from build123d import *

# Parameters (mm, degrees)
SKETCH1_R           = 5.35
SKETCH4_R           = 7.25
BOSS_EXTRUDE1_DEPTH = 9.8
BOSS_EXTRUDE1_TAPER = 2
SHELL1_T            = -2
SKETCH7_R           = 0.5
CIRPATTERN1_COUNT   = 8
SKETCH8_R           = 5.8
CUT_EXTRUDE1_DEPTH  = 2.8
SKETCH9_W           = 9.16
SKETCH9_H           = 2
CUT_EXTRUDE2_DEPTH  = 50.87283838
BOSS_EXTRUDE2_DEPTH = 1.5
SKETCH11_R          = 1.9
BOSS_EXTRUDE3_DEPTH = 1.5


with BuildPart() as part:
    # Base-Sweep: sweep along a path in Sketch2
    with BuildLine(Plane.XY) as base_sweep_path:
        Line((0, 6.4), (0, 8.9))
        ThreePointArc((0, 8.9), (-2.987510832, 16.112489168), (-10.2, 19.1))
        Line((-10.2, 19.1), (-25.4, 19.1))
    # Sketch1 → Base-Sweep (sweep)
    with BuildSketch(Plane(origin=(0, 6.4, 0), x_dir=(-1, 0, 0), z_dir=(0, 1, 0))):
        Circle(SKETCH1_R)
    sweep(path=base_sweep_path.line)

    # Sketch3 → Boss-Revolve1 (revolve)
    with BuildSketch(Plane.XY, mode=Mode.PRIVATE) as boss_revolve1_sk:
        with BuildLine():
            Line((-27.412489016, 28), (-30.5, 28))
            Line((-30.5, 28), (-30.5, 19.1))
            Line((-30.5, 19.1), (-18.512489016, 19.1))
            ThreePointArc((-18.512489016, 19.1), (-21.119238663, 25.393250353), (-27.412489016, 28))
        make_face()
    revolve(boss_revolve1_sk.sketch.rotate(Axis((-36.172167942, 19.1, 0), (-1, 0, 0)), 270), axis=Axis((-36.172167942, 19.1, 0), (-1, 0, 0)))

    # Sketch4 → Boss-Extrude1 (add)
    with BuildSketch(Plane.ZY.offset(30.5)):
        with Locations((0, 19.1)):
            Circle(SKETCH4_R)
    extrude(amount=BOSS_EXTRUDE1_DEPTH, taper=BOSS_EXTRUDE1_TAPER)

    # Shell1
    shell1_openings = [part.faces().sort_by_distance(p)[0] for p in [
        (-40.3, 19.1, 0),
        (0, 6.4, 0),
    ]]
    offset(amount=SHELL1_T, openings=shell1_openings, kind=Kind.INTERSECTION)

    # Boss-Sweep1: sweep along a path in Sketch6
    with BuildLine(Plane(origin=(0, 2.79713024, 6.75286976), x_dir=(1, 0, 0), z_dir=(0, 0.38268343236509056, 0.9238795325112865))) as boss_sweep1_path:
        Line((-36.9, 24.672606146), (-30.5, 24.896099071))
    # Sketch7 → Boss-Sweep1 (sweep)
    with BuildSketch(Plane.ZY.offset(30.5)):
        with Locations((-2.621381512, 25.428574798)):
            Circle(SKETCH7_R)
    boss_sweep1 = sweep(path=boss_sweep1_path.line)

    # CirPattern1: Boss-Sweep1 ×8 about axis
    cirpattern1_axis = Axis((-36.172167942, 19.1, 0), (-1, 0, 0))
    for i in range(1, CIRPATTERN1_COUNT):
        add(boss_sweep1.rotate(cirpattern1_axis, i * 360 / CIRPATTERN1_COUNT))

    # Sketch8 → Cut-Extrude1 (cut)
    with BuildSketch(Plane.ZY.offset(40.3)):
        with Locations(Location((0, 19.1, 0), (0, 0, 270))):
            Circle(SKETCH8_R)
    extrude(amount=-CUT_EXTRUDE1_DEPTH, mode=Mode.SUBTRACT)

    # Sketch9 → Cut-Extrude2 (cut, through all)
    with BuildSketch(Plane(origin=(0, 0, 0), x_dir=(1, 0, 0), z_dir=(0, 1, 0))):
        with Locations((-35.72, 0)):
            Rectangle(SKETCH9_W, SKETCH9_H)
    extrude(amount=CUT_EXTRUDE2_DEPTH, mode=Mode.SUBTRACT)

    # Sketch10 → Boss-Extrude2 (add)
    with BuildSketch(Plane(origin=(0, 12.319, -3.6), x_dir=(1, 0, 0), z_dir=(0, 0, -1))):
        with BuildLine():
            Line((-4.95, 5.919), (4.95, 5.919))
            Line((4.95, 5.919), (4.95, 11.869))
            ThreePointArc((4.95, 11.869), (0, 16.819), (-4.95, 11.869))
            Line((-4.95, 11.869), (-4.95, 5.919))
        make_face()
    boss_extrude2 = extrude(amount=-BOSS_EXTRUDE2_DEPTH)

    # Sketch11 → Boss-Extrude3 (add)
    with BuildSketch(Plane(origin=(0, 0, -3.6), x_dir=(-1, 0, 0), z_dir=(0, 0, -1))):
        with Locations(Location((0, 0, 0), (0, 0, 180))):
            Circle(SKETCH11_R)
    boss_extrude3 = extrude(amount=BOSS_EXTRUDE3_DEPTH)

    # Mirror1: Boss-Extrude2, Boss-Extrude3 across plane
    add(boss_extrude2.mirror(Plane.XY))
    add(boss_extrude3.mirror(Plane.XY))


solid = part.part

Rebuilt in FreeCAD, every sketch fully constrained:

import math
import FreeCAD as App
import Part
import Sketcher
Q = App.Units.Quantity


def faces_at(feature, points):
    """Names of the faces that lie closest to the given points."""
    faces = feature.Shape.Faces
    near = lambda p: min(range(len(faces)), key=lambda i: faces[i].distToShape(Part.Vertex(*p))[0])
    return sorted({f"Face{near(p) + 1}" for p in points})


def add_polygon(sketch, points):
    """Adds a closed chain of lines whose ends are joined by coincident constraints."""
    first, n = sketch.GeometryCount, len(points)
    for a, b in zip(points, points[1:] + points[:1]):
        sketch.addGeometry(Part.LineSegment(App.Vector(*a, 0), App.Vector(*b, 0)), False)
    for i in range(n):
        sketch.addConstraint(Sketcher.Constraint("Coincident", first + i, 2, first + (i + 1) % n, 1))

doc = App.newDocument("Part")
body = doc.addObject("PartDesign::Body", "Body")

sketch1 = doc.addObject("Sketcher::SketchObject", "Sketch")
body.addObject(sketch1)
sketch1.AttachmentSupport = (doc.XZ_Plane, [""])
sketch1.MapMode = "FlatFace"
sketch1.AttachmentOffset = App.Placement(App.Vector(0, 0, -6.4), App.Rotation())
sketch1.addGeometry(Part.Circle(App.Vector(0, 0, 0), App.Vector(0, 0, 1), 5), False)
sketch1.addConstraint([
    Sketcher.Constraint("Coincident", 0, 3, -1, 1),
    Sketcher.Constraint("Diameter", 0, Q("10.7 mm")),
])

sketch2 = doc.addObject("Sketcher::SketchObject", "Sketch001")
body.addObject(sketch2)
sketch2.AttachmentSupport = (doc.XY_Plane, [""])
sketch2.MapMode = "FlatFace"
sketch2.addGeometry([
    Part.LineSegment(App.Vector(0, 6.4, 0), App.Vector(0, 8.9, 0)),
    Part.ArcOfCircle(Part.Circle(App.Vector(-10.2, 8.9, 0), App.Vector(0, 0, 1), 10.2), math.radians(0), math.radians(90)),
    Part.LineSegment(App.Vector(-10.2, 19.1, 0), App.Vector(-25.4, 19.1, 0)),
], False)
sketch2.addConstraint([
    Sketcher.Constraint("Tangent", 0, 2, 1, 1),
    Sketcher.Constraint("Tangent", 1, 2, 2, 1),
    Sketcher.Constraint("Vertical", 0),
    Sketcher.Constraint("Horizontal", 2),
    Sketcher.Constraint("PointOnObject", 0, 1, -2),
    Sketcher.Constraint("Radius", 1, Q("10.2 mm")),
    Sketcher.Constraint("DistanceX", 2, 2, 2, 1, Q("15.2 mm")),
    Sketcher.Constraint("DistanceY", 0, 1, 0, 2, Q("2.5 mm")),
    Sketcher.Constraint("DistanceY", -1, 1, 1, 3, Q("8.9 mm")),
])
doc.recompute()

additivepipe = doc.addObject("PartDesign::AdditivePipe", "AdditivePipe")
body.addObject(additivepipe)
additivepipe.Profile = sketch1
additivepipe.Spine = (sketch2, ["Edge1", "Edge2", "Edge3"])

sketch3 = doc.addObject("Sketcher::SketchObject", "Sketch002")
body.addObject(sketch3)
sketch3.AttachmentSupport = (doc.XY_Plane, [""])
sketch3.MapMode = "FlatFace"
sketch3.addGeometry([
    Part.LineSegment(App.Vector(-27.4, 28, 0), App.Vector(-30.5, 28, 0)),
    Part.LineSegment(App.Vector(-30.5, 28, 0), App.Vector(-30.5, 19.1, 0)),
    Part.LineSegment(App.Vector(-30.5, 19.1, 0), App.Vector(-18.5, 19.1, 0)),
    Part.ArcOfCircle(Part.Circle(App.Vector(-27.4, 19.1, 0), App.Vector(0, 0, 1), 8.9), math.radians(0), math.radians(90)),
], False)
sketch3.addGeometry(Part.LineSegment(App.Vector(-18.5, 19.1, 0), App.Vector(-30.5, 19.1, 0)), True)
sketch3.addConstraint([
    Sketcher.Constraint("Coincident", 0, 2, 1, 1),
    Sketcher.Constraint("Coincident", 1, 2, 2, 1),
    Sketcher.Constraint("Coincident", 2, 2, 3, 1),
    Sketcher.Constraint("Tangent", 3, 2, 0, 1),
    Sketcher.Constraint("Horizontal", 0),
    Sketcher.Constraint("Vertical", 1),
    Sketcher.Constraint("Horizontal", 2),
    Sketcher.Constraint("Horizontal", 4),
    Sketcher.Constraint("Coincident", 4, 1, 2, 2),
    Sketcher.Constraint("Horizontal", 3, 3, 1, 2),
    Sketcher.Constraint("Vertical", 0, 2, 4, 2),
    Sketcher.Constraint("Radius", 3, Q("8.9 mm")),
    Sketcher.Constraint("DistanceY", -1, 1, 0, 2, Q("28 mm")),
    Sketcher.Constraint("DistanceX", 0, 2, -1, 1, Q("30.5 mm")),
    Sketcher.Constraint("DistanceX", 0, 2, 0, 1, Q("3.087511 mm")),
])
revolution = doc.addObject("PartDesign::Revolution", "Revolution")
body.addObject(revolution)
revolution.Profile = sketch3
revolution.ReferenceAxis = (sketch3, ["Axis0"])
revolution.Angle = 360

sketch4 = doc.addObject("Sketcher::SketchObject", "Sketch003")
body.addObject(sketch4)
sketch4.AttachmentSupport = (doc.YZ_Plane, [""])
sketch4.MapMode = "FlatFace"
sketch4.AttachmentOffset = App.Placement(App.Vector(0, 0, -30.5), App.Rotation())
sketch4.addGeometry(Part.Circle(App.Vector(19, 0, 0), App.Vector(0, 0, 1), 7), False)
sketch4.addConstraint([
    Sketcher.Constraint("PointOnObject", 0, 3, -1),
    Sketcher.Constraint("Diameter", 0, Q("14.5 mm")),
    Sketcher.Constraint("DistanceX", -1, 1, 0, 3, Q("19.1 mm")),
])
pad1 = doc.addObject("PartDesign::Pad", "Pad")
body.addObject(pad1)
pad1.Profile = sketch4
pad1.Length = 9.8
pad1.Reversed = True
pad1.TaperAngle = -2
doc.recompute()

thickness = doc.addObject("PartDesign::Thickness", "Thickness")
body.addObject(thickness)
thickness.Base = (pad1, faces_at(pad1, [(-40.3, 19.1, 0), (0, 6.4, 0)]))
thickness.Value = 2
thickness.Reversed = True
thickness.Join = "Intersection"

sketch5 = doc.addObject("Sketcher::SketchObject", "Sketch004")
body.addObject(sketch5)
sketch5.AttachmentSupport = (doc.YZ_Plane, [""])
sketch5.MapMode = "FlatFace"
sketch5.AttachmentOffset = App.Placement(App.Vector(0, 0, -30.5), App.Rotation())
sketch5.addGeometry(Part.Circle(App.Vector(25.4, -2.6, 0), App.Vector(0, 0, 1), 0.5), False)
sketch5.addConstraint([
    Sketcher.Constraint("Diameter", 0, Q("1 mm")),
    Sketcher.Constraint("DistanceY", 0, 3, -1, 1, Q("2.621382 mm")),
    Sketcher.Constraint("DistanceX", -1, 1, 0, 3, Q("25.428575 mm")),
])

sketch6 = doc.addObject("Sketcher::SketchObject", "Sketch005")
body.addObject(sketch6)
sketch6.Placement = App.Placement(App.Vector(-0.863162, 26.754288, 0), App.Rotation(App.Vector(0.999479969, 0.032245807, 0), App.Vector(0, 0, 1.000000001), App.Vector(0.032245807, -0.999479969, 0), "ZXY"))
sketch6.addGeometry(Part.LineSegment(App.Vector(-36.055588, -2.688928, 0), App.Vector(-29.652258, -2.774455, 0)), False)
sketch6.addConstraint([
    Sketcher.Constraint("Distance", 0, Q("6.403901 mm")),
    Sketcher.Constraint("DistanceX", 0, 1, 0, 2, Q("6.40333 mm")),
    Sketcher.Constraint("DistanceX", 0, 1, -1, 1, Q("36.055588 mm")),
    Sketcher.Constraint("DistanceY", 0, 1, -1, 1, Q("2.688928 mm")),
])
doc.recompute()

additivepipe2 = doc.addObject("PartDesign::AdditivePipe", "AdditivePipe001")
body.addObject(additivepipe2)
additivepipe2.Profile = sketch5
additivepipe2.Spine = (sketch6, ["Edge1"])
doc.recompute()

datumline = doc.addObject("PartDesign::Line", "DatumLine")
body.addObject(datumline)
datumline.Placement = App.Placement(App.Vector(0, 19.1, 0), App.Rotation(App.Vector(0, 0, 1), App.Vector(-1, 0, 0)))
polarpattern = doc.addObject("PartDesign::PolarPattern", "PolarPattern")
body.addObject(polarpattern)
polarpattern.Originals = [additivepipe2]
polarpattern.Axis = (datumline, [""])
polarpattern.Angle = 360
polarpattern.Occurrences = 8
body.Tip = polarpattern

sketch7 = doc.addObject("Sketcher::SketchObject", "Sketch006")
body.addObject(sketch7)
sketch7.AttachmentSupport = (doc.YZ_Plane, [""])
sketch7.MapMode = "FlatFace"
sketch7.AttachmentOffset = App.Placement(App.Vector(0, 0, -40.3), App.Rotation())
sketch7.addGeometry(Part.Circle(App.Vector(19, 0, 0), App.Vector(0, 0, 1), 6), False)
sketch7.addConstraint([
    Sketcher.Constraint("PointOnObject", 0, 3, -1),
    Sketcher.Constraint("Diameter", 0, Q("11.6 mm")),
    Sketcher.Constraint("DistanceX", -1, 1, 0, 3, Q("19.1 mm")),
])
pocket1 = doc.addObject("PartDesign::Pocket", "Pocket")
body.addObject(pocket1)
pocket1.Profile = sketch7
pocket1.Length = 2.8
pocket1.Reversed = True

sketch8 = doc.addObject("Sketcher::SketchObject", "Sketch007")
body.addObject(sketch8)
sketch8.AttachmentSupport = (doc.XZ_Plane, [""])
sketch8.MapMode = "FlatFace"
add_polygon(sketch8, [(-40.3, -1), (-40.3, 1), (-31.1, 1), (-31.1, -1)])
sketch8.addConstraint([
    Sketcher.Constraint("Vertical", 0),
    Sketcher.Constraint("Horizontal", 1),
    Sketcher.Constraint("Vertical", 2),
    Sketcher.Constraint("Horizontal", 3),
    Sketcher.Constraint("DistanceY", 0, 1, 0, 2, Q("2 mm")),
    Sketcher.Constraint("DistanceY", -1, 1, 0, 2, Q("1 mm")),
    Sketcher.Constraint("DistanceX", 1, 1, 1, 2, Q("9.16 mm")),
    Sketcher.Constraint("DistanceX", 0, 2, -1, 1, Q("40.3 mm")),
])
pocket2 = doc.addObject("PartDesign::Pocket", "Pocket001")
body.addObject(pocket2)
pocket2.Profile = sketch8
pocket2.Type = "ThroughAll"

sketch9 = doc.addObject("Sketcher::SketchObject", "Sketch008")
body.addObject(sketch9)
sketch9.AttachmentSupport = (doc.XY_Plane, [""])
sketch9.MapMode = "FlatFace"
sketch9.AttachmentOffset = App.Placement(App.Vector(0, 0, -3.6), App.Rotation())
sketch9.addGeometry([
    Part.LineSegment(App.Vector(-5, 6.4, 0), App.Vector(5, 6.4, 0)),
    Part.LineSegment(App.Vector(5, 6.4, 0), App.Vector(5, 0.5, 0)),
    Part.ArcOfCircle(Part.Circle(App.Vector(0, 0.5, 0), App.Vector(0, 0, 1), 5), math.radians(180), math.radians(360)),
    Part.LineSegment(App.Vector(-5, 0.5, 0), App.Vector(-5, 6.4, 0)),
], False)
sketch9.addConstraint([
    Sketcher.Constraint("Coincident", 0, 2, 1, 1),
    Sketcher.Constraint("Tangent", 1, 2, 2, 2),
    Sketcher.Constraint("Tangent", 2, 1, 3, 1),
    Sketcher.Constraint("Coincident", 3, 2, 0, 1),
    Sketcher.Constraint("Horizontal", 0),
    Sketcher.Constraint("Vertical", 1),
    Sketcher.Constraint("Vertical", 3),
    Sketcher.Constraint("PointOnObject", 2, 3, -2),
    Sketcher.Constraint("Radius", 2, Q("4.95 mm")),
    Sketcher.Constraint("DistanceY", 1, 2, 1, 1, Q("5.95 mm")),
    Sketcher.Constraint("DistanceY", -1, 1, 0, 2, Q("6.4 mm")),
])
pad2 = doc.addObject("PartDesign::Pad", "Pad001")
body.addObject(pad2)
pad2.Profile = sketch9
pad2.Length = 1.5

sketch10 = doc.addObject("Sketcher::SketchObject", "Sketch009")
body.addObject(sketch10)
sketch10.AttachmentSupport = (doc.XY_Plane, [""])
sketch10.MapMode = "FlatFace"
sketch10.AttachmentOffset = App.Placement(App.Vector(0, 0, -3.6), App.Rotation())
sketch10.addGeometry(Part.Circle(App.Vector(0, 0, 0), App.Vector(0, 0, 1), 1.9), False)
sketch10.addConstraint([
    Sketcher.Constraint("Coincident", 0, 3, -1, 1),
    Sketcher.Constraint("Diameter", 0, Q("3.8 mm")),
])
pad3 = doc.addObject("PartDesign::Pad", "Pad002")
body.addObject(pad3)
pad3.Profile = sketch10
pad3.Length = 1.5
pad3.Reversed = True
doc.recompute()

mirrored = doc.addObject("PartDesign::Mirrored", "Mirrored")
body.addObject(mirrored)
mirrored.Originals = [pad2, pad3]
mirrored.MirrorPlane = (doc.XY_Plane, [""])
body.Tip = mirrored

doc.recompute()
